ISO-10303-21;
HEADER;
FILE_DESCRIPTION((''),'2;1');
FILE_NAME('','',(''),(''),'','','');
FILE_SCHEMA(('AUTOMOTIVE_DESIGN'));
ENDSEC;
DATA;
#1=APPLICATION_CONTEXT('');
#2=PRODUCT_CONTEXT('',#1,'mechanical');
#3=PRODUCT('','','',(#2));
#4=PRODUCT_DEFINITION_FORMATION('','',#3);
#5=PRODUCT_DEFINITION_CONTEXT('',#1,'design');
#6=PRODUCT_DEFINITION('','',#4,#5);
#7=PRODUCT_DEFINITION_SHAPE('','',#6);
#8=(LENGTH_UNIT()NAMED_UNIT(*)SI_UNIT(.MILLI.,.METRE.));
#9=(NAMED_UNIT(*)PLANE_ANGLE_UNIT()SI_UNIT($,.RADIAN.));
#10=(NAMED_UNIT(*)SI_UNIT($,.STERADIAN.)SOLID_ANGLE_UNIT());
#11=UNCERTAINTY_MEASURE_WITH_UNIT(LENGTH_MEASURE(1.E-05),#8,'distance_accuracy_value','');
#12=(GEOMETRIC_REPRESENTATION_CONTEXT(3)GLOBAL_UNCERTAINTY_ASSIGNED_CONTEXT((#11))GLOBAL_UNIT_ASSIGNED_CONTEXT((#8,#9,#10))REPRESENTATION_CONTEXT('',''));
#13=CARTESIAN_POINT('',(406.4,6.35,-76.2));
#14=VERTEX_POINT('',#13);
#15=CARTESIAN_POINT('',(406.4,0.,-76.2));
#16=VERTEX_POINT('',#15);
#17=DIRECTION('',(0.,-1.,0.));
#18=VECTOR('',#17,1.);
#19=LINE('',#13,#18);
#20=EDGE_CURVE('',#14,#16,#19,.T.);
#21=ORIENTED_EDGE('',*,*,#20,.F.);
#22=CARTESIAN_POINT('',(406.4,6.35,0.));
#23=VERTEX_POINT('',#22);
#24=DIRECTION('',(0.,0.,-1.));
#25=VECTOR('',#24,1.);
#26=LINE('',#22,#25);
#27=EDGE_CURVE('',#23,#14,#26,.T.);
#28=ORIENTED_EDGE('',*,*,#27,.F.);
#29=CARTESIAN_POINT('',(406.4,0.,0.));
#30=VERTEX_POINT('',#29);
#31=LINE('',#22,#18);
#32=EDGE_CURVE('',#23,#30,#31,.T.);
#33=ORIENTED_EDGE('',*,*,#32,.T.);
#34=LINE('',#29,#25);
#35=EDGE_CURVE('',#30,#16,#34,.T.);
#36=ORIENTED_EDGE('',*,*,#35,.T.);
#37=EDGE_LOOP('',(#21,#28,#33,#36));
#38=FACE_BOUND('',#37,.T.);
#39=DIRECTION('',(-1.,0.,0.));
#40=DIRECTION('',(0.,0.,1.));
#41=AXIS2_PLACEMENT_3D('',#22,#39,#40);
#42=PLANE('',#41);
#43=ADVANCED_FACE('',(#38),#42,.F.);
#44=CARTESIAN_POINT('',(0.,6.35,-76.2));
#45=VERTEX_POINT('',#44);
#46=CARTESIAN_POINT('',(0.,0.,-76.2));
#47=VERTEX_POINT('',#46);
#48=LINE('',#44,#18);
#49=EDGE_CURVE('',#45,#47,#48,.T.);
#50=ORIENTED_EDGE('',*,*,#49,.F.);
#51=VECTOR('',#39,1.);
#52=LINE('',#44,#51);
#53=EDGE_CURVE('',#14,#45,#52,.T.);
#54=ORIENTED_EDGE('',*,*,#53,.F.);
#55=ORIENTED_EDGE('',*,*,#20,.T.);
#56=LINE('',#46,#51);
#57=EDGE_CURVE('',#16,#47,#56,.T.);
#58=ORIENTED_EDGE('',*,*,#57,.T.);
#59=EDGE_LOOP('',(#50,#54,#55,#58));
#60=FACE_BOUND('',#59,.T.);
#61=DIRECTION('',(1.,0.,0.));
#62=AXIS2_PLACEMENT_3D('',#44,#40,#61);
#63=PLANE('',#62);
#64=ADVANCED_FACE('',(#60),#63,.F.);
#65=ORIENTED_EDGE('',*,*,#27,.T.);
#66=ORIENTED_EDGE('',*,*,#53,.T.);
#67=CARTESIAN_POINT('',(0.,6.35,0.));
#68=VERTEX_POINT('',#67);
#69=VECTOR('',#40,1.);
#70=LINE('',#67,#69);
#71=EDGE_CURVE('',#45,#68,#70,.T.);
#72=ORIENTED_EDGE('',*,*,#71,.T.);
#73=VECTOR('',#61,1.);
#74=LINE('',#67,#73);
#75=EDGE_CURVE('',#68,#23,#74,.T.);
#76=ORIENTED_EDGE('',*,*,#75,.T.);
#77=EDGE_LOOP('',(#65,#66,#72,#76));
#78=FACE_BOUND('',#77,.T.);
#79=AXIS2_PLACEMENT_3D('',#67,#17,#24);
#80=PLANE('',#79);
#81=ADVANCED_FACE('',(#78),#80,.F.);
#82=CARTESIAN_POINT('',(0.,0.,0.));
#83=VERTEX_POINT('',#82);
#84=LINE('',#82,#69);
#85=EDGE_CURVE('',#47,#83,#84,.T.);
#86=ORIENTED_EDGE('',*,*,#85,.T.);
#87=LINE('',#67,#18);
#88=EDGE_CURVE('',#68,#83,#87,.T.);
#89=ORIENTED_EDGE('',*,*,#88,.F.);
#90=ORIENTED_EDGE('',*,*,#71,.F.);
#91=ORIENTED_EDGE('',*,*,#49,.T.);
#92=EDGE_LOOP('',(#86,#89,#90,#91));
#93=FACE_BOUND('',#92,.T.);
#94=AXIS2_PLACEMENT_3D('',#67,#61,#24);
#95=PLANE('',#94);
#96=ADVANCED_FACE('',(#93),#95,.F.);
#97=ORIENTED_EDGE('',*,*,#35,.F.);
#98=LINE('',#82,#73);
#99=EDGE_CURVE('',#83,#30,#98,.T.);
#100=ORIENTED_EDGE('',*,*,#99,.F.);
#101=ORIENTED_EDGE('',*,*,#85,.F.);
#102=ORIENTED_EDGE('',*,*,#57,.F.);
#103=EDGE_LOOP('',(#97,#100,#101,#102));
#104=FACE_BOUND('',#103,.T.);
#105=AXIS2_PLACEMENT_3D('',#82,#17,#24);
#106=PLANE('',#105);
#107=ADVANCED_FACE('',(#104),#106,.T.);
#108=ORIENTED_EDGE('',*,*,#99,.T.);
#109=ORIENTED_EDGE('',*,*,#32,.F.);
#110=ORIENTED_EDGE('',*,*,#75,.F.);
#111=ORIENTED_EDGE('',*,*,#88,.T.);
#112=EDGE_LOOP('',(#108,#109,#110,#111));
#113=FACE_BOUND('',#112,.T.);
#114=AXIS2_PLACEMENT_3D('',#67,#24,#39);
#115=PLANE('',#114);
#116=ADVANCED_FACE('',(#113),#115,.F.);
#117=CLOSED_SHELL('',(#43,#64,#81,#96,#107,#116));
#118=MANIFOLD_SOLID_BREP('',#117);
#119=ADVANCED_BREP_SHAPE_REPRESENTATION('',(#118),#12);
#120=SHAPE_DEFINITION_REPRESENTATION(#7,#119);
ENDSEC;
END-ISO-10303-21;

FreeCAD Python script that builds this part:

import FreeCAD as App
import Part
import Sketcher

V = App.Vector
Q = App.Units.Quantity


def add_polygon(sketch, points):
    """Adds a closed chain of lines whose ends are joined by coincident constraints."""
    first, n = sketch.GeometryCount, len(points)
    for a, b in zip(points, points[1:] + points[:1]):
        sketch.addGeometry(Part.LineSegment(App.Vector(*a, 0), App.Vector(*b, 0)), False)
    for i in range(n):
        sketch.addConstraint(Sketcher.Constraint("Coincident", first + i, 2, first + (i + 1) % n, 1))

doc = App.newDocument("Part")
body = doc.addObject("PartDesign::Body", "Body")

# Sketch on XZ plane
sketch1 = body.newObject("Sketcher::SketchObject", "Sketch")
sketch1.AttachmentSupport = (doc.getObject("XZ_Plane"), [""])
sketch1.MapMode = "FlatFace"
add_polygon(sketch1, [(0, -76), (0, 0), (406, 0), (406, -76)])  # lines 0-3
sketch1.addConstraint(Sketcher.Constraint("Vertical", 0))
sketch1.addConstraint(Sketcher.Constraint("Horizontal", 1))
sketch1.addConstraint(Sketcher.Constraint("Vertical", 2))
sketch1.addConstraint(Sketcher.Constraint("Horizontal", 3))
sketch1.addConstraint(Sketcher.Constraint("Coincident", 0, 2, -1, 1))
sketch1.addConstraint(Sketcher.Constraint("DistanceX", 1, 1, 1, 2, Q("16 in")))
sketch1.addConstraint(Sketcher.Constraint("DistanceY", 0, 1, 0, 2, Q("3 in")))
pad1 = body.newObject("PartDesign::Pad", "Pad")
pad1.Profile = sketch1
pad1.Length = Q("0.25 in")
pad1.Reversed = True

doc.recompute()
